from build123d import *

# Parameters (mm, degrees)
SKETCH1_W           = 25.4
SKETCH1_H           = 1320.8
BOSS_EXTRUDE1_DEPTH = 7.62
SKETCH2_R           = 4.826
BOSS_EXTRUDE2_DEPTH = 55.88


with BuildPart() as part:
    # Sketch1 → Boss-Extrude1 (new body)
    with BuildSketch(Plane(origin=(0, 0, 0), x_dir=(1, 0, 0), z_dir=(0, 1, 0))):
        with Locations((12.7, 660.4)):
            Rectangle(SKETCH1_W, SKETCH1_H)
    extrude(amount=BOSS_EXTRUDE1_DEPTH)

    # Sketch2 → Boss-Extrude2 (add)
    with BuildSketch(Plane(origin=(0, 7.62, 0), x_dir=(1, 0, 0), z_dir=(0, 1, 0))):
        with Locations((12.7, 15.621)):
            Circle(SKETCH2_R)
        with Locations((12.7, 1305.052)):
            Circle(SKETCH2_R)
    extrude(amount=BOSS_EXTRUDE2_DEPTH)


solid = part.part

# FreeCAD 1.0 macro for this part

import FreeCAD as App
import Part
import Sketcher

V = App.Vector
Q = App.Units.Quantity

doc = App.newDocument("Part")
body = doc.addObject("PartDesign::Body", "Body")

sketch1 = body.newObject("Sketcher::SketchObject", "Sketch")
sketch1.AttachmentSupport = (doc.getObject("XZ_Plane"), [""])
sketch1.MapMode = "FlatFace"
sketch1.addGeometry([
    Part.LineSegment(V(0, -1320.8, 0), V(0, 0, 0)),
    Part.LineSegment(V(0, 0, 0), V(25.4, 0, 0)),
    Part.LineSegment(V(25.4, 0, 0), V(25.4, -1320.8, 0)),
    Part.LineSegment(V(25.4, -1320.8, 0), V(0, -1320.8, 0)),
], False)
sketch1.addConstraint([
    Sketcher.Constraint("Coincident", 0, 2, 1, 1),
    Sketcher.Constraint("Coincident", 1, 2, 2, 1),
    Sketcher.Constraint("Coincident", 2, 2, 3, 1),
    Sketcher.Constraint("Coincident", 3, 2, 0, 1),
    Sketcher.Constraint("Vertical", 0),
    Sketcher.Constraint("Horizontal", 1),
    Sketcher.Constraint("Vertical", 2),
    Sketcher.Constraint("Horizontal", 3),
    Sketcher.Constraint("Coincident", 0, 2, -1, 1),
    Sketcher.Constraint("DistanceX", 1, 1, 1, 2, Q("1 in")),
    Sketcher.Constraint("DistanceY", 0, 1, 0, 2, Q("52 in")),
])
pad1 = body.newObject("PartDesign::Pad", "Pad")
pad1.Profile = sketch1
pad1.Length = Q("0.3 in")
pad1.Reversed = True

sketch2 = body.newObject("Sketcher::SketchObject", "Sketch001")
sketch2.AttachmentSupport = (doc.getObject("XZ_Plane"), [""])
sketch2.MapMode = "FlatFace"
sketch2.AttachmentOffset = App.Placement(V(0, 0, -0.3 * 25.4), App.Rotation())
sketch2.addGeometry([
    Part.Circle(V(12.7, -15.621, 0), V(0, 0, 1), 4.826),
    Part.Circle(V(12.7, -1305.052, 0), V(0, 0, 1), 4.826),
], False)
sketch2.addConstraint([
    Sketcher.Constraint("Equal", 0, 1),
    Sketcher.Constraint("Vertical", 0, 3, 1, 3),
    Sketcher.Constraint("Diameter", 0, Q("0.38 in")),
    Sketcher.Constraint("DistanceX", -1, 1, 0, 3, Q("0.5 in")),
    Sketcher.Constraint("DistanceY", 1, 3, -1, 1, Q("51.38 in")),
    Sketcher.Constraint("DistanceY", 0, 3, -1, 1, Q("0.615 in")),
])
pad2 = body.newObject("PartDesign::Pad", "Pad001")
pad2.Profile = sketch2
pad2.Length = Q("2.2 in")
pad2.Reversed = True

doc.recompute()
